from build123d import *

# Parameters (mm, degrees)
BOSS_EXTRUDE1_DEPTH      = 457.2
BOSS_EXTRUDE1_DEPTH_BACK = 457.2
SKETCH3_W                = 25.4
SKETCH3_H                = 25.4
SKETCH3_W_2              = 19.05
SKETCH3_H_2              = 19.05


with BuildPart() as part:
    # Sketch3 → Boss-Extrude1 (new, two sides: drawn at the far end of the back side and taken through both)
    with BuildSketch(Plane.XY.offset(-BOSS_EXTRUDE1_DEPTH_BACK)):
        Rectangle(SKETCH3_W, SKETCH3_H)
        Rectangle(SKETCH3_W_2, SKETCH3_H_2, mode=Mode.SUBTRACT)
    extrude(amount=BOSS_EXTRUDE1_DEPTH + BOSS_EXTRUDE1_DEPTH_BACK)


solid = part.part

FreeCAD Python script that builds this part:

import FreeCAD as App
import Part
import Sketcher

V = App.Vector
Q = App.Units.Quantity


def add_polygon(sketch, points):
    """Adds a closed chain of lines whose ends are joined by coincident constraints."""
    first, n = sketch.GeometryCount, len(points)
    for a, b in zip(points, points[1:] + points[:1]):
        sketch.addGeometry(Part.LineSegment(App.Vector(*a, 0), App.Vector(*b, 0)), False)
    for i in range(n):
        sketch.addConstraint(Sketcher.Constraint("Coincident", first + i, 2, first + (i + 1) % n, 1))

doc = App.newDocument("Part")
body = doc.addObject("PartDesign::Body", "Body")

sketch1 = body.newObject("Sketcher::SketchObject", "Sketch")
sketch1.AttachmentSupport = (doc.getObject("XY_Plane"), [""])
sketch1.MapMode = "FlatFace"
add_polygon(sketch1, [(-12.7, 12.7), (-12.7, -12.7), (12.7, -12.7), (12.7, 12.7)])
add_polygon(sketch1, [(9.525, -9.525), (-9.525, -9.525), (-9.525, 9.525), (9.525, 9.525)])
sketch1.addConstraint([
    Sketcher.Constraint("Vertical", 0),
    Sketcher.Constraint("Horizontal", 1),
    Sketcher.Constraint("Vertical", 2),
    Sketcher.Constraint("Horizontal", 3),
    Sketcher.Constraint("Horizontal", 4),
    Sketcher.Constraint("Vertical", 5),
    Sketcher.Constraint("Horizontal", 6),
    Sketcher.Constraint("Vertical", 7),
    Sketcher.Constraint("Symmetric", 0, 2, 2, 2, -1, 1),
    Sketcher.Constraint("Symmetric", 4, 2, 6, 2, -1, 1),
    Sketcher.Constraint("Equal", 3, 0),
    Sketcher.Constraint("Equal", 6, 5),
    Sketcher.Constraint("DistanceX", 1, 1, 1, 2, Q("1 in")),
    Sketcher.Constraint("DistanceX", 4, 2, 4, 1, Q("0.75 in")),
])
pad1 = body.newObject("PartDesign::Pad", "Pad")
pad1.Profile = sketch1
pad1.Type = "TwoLengths"
pad1.Length = Q("18 in")
pad1.Length2 = Q("18 in")

doc.recompute()
